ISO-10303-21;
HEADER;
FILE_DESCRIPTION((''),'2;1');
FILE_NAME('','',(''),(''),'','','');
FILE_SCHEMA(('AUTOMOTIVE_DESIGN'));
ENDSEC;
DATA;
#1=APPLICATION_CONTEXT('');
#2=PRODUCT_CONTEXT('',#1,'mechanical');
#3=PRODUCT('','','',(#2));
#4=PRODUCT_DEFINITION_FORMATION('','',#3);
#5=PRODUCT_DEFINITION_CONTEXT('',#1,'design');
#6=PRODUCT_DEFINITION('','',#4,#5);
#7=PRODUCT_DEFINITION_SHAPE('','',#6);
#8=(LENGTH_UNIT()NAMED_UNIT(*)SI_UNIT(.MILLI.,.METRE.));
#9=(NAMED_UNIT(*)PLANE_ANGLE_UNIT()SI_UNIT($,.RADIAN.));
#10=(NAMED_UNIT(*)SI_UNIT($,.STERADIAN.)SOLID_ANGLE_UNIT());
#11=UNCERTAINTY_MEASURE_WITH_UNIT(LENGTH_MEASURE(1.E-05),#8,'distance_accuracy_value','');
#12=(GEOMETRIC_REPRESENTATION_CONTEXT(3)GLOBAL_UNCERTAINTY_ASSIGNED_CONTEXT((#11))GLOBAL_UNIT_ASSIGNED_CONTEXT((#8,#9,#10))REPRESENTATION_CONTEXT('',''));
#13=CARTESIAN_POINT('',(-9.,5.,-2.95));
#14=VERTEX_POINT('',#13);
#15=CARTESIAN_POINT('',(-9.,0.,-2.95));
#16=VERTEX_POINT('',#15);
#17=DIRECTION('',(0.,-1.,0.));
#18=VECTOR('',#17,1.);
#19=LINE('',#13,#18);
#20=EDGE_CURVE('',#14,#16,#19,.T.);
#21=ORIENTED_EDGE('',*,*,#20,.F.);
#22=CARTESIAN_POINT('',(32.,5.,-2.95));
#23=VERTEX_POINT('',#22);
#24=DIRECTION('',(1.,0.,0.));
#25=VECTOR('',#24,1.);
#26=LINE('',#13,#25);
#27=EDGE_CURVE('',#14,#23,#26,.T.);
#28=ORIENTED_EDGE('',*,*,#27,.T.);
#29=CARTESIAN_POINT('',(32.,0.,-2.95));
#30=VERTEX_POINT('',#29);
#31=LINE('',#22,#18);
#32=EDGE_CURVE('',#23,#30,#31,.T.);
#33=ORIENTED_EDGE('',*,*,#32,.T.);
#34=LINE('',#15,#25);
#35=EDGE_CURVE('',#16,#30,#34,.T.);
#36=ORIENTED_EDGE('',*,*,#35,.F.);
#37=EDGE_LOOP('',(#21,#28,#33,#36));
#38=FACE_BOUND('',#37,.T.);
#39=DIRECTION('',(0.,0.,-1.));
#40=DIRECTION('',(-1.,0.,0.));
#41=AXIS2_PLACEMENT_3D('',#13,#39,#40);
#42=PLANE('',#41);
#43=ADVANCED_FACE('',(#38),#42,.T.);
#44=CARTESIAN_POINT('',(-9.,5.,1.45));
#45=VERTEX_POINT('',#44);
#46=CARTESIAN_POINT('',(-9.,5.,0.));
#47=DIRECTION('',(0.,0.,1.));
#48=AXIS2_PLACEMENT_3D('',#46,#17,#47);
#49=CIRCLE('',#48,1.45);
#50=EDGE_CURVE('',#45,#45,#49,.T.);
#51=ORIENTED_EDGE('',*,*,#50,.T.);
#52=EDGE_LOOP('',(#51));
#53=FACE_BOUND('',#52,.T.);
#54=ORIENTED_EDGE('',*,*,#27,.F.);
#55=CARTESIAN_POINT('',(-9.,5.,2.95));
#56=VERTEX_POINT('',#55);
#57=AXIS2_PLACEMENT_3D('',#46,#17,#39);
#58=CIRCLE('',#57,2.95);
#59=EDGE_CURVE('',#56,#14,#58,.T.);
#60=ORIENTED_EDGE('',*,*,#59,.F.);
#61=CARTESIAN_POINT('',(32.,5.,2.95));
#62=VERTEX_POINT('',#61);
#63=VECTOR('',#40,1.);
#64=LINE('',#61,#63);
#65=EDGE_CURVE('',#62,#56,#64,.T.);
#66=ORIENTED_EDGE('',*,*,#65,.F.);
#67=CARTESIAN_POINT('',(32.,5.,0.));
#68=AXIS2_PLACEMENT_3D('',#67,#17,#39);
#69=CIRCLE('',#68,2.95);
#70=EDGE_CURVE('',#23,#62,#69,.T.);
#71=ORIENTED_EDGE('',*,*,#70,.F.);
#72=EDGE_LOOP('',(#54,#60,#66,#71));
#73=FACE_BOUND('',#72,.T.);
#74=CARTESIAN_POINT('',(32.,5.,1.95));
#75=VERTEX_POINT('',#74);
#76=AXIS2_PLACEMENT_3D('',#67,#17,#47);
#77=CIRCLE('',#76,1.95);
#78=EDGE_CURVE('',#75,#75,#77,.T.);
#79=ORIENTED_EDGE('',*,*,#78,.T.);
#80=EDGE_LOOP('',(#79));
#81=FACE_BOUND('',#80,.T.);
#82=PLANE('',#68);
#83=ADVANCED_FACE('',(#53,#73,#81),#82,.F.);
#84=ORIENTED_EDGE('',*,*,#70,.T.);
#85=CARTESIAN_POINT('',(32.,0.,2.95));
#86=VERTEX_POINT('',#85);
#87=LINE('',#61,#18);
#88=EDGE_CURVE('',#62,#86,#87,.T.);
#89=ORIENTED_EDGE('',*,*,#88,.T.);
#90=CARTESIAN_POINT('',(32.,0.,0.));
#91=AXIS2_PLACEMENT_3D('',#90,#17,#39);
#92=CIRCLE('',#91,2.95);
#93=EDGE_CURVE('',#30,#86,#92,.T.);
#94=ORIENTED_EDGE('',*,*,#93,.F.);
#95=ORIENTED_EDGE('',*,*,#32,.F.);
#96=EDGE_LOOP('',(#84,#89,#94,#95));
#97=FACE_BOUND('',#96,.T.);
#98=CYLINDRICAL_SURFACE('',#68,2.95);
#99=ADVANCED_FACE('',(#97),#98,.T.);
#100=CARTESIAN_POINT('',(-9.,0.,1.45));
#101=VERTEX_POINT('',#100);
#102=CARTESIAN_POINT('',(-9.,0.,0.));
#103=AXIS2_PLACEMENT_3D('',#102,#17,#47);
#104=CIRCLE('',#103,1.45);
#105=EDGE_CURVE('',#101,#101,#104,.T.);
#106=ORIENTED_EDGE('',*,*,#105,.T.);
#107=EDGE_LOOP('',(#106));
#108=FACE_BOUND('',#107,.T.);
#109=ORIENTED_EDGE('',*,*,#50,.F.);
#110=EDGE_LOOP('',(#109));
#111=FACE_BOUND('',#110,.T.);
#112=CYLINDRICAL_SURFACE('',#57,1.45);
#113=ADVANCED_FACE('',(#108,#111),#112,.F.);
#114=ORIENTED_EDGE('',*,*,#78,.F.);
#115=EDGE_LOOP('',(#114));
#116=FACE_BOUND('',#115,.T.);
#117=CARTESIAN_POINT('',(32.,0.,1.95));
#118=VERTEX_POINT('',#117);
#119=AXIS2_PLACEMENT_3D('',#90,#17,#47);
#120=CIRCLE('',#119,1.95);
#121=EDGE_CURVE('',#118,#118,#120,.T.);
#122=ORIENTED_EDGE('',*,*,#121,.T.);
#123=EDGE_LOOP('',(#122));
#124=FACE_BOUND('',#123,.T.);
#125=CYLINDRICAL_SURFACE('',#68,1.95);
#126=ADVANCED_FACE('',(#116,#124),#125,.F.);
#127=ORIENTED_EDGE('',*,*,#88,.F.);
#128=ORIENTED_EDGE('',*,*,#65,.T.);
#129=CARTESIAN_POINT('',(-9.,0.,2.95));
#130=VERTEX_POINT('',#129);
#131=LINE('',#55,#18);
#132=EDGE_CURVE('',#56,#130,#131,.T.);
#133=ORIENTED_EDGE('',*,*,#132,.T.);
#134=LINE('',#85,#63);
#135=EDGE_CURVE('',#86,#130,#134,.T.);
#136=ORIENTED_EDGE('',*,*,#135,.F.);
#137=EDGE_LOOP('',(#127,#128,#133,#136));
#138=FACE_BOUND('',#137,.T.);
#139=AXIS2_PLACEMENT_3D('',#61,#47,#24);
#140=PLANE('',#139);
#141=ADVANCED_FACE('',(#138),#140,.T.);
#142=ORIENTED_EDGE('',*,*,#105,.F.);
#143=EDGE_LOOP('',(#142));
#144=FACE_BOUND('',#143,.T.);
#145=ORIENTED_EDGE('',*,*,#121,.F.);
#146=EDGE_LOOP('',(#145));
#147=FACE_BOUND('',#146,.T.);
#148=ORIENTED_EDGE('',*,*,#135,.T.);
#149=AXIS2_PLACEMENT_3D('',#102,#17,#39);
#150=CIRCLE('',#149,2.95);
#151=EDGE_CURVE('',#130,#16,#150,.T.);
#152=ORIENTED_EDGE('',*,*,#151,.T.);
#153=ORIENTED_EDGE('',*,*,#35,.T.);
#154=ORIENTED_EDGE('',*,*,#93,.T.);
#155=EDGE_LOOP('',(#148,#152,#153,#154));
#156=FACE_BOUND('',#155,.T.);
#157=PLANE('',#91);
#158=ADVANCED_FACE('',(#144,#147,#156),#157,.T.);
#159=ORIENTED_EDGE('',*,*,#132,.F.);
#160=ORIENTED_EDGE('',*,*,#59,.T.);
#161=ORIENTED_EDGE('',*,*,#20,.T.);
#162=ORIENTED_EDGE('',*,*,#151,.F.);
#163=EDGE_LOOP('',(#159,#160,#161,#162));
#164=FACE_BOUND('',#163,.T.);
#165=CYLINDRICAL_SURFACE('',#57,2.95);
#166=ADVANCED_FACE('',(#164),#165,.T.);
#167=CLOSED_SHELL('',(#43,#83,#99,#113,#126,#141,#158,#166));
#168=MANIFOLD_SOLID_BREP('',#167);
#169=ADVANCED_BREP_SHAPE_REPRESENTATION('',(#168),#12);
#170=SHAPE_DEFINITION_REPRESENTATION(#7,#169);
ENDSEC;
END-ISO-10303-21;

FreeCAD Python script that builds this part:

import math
import FreeCAD as App
import Part
import Sketcher
from FreeCAD import Vector

doc = App.newDocument("Part")
body = doc.addObject("PartDesign::Body", "Body")

sketch1 = doc.addObject("Sketcher::SketchObject", "Sketch")
body.addObject(sketch1)
sketch1.AttachmentSupport = (doc.XZ_Plane, [""])
sketch1.MapMode = "FlatFace"
sketch1.addGeometry([
    Part.LineSegment(Vector(32, 3, 0), Vector(-9, 3, 0)),
    Part.ArcOfCircle(Part.Circle(Vector(-9, 0, 0), Vector(0, 0, 1), 3), math.radians(90), math.radians(270)),
    Part.LineSegment(Vector(-9, -3, 0), Vector(32, -3, 0)),
    Part.ArcOfCircle(Part.Circle(Vector(32, 0, 0), Vector(0, 0, 1), 3), math.radians(-90), math.radians(90)),
    Part.Circle(Vector(-9, 0, 0), Vector(0, 0, 1), 1.4),
    Part.Circle(Vector(32, 0, 0), Vector(0, 0, 1), 1.9),
], False)
sketch1.addConstraint([
    Sketcher.Constraint("Tangent", 0, 2, 1, 1),
    Sketcher.Constraint("Tangent", 1, 2, 2, 1),
    Sketcher.Constraint("Tangent", 2, 2, 3, 1),
    Sketcher.Constraint("Tangent", 3, 2, 0, 1),
    Sketcher.Constraint("Horizontal", 0),
    Sketcher.Constraint("Horizontal", 2),
    Sketcher.Constraint("Coincident", 4, 3, 1, 3),
    Sketcher.Constraint("Coincident", 5, 3, 3, 3),
    Sketcher.Constraint("PointOnObject", 1, 3, -1),
    Sketcher.Constraint("Diameter", 4, 2.9),
    Sketcher.Constraint("Diameter", 5, 3.9),
    Sketcher.Constraint("DistanceX", 0, 2, 0, 1, 41.0),
    Sketcher.Constraint("Radius", 1, 2.95),
    Sketcher.Constraint("DistanceX", 1, 3, -1, 1, 9.0),
])
pad1 = doc.addObject("PartDesign::Pad", "Pad")
body.addObject(pad1)
pad1.Profile = sketch1
pad1.Length = 5
pad1.Reversed = True

doc.recompute()
